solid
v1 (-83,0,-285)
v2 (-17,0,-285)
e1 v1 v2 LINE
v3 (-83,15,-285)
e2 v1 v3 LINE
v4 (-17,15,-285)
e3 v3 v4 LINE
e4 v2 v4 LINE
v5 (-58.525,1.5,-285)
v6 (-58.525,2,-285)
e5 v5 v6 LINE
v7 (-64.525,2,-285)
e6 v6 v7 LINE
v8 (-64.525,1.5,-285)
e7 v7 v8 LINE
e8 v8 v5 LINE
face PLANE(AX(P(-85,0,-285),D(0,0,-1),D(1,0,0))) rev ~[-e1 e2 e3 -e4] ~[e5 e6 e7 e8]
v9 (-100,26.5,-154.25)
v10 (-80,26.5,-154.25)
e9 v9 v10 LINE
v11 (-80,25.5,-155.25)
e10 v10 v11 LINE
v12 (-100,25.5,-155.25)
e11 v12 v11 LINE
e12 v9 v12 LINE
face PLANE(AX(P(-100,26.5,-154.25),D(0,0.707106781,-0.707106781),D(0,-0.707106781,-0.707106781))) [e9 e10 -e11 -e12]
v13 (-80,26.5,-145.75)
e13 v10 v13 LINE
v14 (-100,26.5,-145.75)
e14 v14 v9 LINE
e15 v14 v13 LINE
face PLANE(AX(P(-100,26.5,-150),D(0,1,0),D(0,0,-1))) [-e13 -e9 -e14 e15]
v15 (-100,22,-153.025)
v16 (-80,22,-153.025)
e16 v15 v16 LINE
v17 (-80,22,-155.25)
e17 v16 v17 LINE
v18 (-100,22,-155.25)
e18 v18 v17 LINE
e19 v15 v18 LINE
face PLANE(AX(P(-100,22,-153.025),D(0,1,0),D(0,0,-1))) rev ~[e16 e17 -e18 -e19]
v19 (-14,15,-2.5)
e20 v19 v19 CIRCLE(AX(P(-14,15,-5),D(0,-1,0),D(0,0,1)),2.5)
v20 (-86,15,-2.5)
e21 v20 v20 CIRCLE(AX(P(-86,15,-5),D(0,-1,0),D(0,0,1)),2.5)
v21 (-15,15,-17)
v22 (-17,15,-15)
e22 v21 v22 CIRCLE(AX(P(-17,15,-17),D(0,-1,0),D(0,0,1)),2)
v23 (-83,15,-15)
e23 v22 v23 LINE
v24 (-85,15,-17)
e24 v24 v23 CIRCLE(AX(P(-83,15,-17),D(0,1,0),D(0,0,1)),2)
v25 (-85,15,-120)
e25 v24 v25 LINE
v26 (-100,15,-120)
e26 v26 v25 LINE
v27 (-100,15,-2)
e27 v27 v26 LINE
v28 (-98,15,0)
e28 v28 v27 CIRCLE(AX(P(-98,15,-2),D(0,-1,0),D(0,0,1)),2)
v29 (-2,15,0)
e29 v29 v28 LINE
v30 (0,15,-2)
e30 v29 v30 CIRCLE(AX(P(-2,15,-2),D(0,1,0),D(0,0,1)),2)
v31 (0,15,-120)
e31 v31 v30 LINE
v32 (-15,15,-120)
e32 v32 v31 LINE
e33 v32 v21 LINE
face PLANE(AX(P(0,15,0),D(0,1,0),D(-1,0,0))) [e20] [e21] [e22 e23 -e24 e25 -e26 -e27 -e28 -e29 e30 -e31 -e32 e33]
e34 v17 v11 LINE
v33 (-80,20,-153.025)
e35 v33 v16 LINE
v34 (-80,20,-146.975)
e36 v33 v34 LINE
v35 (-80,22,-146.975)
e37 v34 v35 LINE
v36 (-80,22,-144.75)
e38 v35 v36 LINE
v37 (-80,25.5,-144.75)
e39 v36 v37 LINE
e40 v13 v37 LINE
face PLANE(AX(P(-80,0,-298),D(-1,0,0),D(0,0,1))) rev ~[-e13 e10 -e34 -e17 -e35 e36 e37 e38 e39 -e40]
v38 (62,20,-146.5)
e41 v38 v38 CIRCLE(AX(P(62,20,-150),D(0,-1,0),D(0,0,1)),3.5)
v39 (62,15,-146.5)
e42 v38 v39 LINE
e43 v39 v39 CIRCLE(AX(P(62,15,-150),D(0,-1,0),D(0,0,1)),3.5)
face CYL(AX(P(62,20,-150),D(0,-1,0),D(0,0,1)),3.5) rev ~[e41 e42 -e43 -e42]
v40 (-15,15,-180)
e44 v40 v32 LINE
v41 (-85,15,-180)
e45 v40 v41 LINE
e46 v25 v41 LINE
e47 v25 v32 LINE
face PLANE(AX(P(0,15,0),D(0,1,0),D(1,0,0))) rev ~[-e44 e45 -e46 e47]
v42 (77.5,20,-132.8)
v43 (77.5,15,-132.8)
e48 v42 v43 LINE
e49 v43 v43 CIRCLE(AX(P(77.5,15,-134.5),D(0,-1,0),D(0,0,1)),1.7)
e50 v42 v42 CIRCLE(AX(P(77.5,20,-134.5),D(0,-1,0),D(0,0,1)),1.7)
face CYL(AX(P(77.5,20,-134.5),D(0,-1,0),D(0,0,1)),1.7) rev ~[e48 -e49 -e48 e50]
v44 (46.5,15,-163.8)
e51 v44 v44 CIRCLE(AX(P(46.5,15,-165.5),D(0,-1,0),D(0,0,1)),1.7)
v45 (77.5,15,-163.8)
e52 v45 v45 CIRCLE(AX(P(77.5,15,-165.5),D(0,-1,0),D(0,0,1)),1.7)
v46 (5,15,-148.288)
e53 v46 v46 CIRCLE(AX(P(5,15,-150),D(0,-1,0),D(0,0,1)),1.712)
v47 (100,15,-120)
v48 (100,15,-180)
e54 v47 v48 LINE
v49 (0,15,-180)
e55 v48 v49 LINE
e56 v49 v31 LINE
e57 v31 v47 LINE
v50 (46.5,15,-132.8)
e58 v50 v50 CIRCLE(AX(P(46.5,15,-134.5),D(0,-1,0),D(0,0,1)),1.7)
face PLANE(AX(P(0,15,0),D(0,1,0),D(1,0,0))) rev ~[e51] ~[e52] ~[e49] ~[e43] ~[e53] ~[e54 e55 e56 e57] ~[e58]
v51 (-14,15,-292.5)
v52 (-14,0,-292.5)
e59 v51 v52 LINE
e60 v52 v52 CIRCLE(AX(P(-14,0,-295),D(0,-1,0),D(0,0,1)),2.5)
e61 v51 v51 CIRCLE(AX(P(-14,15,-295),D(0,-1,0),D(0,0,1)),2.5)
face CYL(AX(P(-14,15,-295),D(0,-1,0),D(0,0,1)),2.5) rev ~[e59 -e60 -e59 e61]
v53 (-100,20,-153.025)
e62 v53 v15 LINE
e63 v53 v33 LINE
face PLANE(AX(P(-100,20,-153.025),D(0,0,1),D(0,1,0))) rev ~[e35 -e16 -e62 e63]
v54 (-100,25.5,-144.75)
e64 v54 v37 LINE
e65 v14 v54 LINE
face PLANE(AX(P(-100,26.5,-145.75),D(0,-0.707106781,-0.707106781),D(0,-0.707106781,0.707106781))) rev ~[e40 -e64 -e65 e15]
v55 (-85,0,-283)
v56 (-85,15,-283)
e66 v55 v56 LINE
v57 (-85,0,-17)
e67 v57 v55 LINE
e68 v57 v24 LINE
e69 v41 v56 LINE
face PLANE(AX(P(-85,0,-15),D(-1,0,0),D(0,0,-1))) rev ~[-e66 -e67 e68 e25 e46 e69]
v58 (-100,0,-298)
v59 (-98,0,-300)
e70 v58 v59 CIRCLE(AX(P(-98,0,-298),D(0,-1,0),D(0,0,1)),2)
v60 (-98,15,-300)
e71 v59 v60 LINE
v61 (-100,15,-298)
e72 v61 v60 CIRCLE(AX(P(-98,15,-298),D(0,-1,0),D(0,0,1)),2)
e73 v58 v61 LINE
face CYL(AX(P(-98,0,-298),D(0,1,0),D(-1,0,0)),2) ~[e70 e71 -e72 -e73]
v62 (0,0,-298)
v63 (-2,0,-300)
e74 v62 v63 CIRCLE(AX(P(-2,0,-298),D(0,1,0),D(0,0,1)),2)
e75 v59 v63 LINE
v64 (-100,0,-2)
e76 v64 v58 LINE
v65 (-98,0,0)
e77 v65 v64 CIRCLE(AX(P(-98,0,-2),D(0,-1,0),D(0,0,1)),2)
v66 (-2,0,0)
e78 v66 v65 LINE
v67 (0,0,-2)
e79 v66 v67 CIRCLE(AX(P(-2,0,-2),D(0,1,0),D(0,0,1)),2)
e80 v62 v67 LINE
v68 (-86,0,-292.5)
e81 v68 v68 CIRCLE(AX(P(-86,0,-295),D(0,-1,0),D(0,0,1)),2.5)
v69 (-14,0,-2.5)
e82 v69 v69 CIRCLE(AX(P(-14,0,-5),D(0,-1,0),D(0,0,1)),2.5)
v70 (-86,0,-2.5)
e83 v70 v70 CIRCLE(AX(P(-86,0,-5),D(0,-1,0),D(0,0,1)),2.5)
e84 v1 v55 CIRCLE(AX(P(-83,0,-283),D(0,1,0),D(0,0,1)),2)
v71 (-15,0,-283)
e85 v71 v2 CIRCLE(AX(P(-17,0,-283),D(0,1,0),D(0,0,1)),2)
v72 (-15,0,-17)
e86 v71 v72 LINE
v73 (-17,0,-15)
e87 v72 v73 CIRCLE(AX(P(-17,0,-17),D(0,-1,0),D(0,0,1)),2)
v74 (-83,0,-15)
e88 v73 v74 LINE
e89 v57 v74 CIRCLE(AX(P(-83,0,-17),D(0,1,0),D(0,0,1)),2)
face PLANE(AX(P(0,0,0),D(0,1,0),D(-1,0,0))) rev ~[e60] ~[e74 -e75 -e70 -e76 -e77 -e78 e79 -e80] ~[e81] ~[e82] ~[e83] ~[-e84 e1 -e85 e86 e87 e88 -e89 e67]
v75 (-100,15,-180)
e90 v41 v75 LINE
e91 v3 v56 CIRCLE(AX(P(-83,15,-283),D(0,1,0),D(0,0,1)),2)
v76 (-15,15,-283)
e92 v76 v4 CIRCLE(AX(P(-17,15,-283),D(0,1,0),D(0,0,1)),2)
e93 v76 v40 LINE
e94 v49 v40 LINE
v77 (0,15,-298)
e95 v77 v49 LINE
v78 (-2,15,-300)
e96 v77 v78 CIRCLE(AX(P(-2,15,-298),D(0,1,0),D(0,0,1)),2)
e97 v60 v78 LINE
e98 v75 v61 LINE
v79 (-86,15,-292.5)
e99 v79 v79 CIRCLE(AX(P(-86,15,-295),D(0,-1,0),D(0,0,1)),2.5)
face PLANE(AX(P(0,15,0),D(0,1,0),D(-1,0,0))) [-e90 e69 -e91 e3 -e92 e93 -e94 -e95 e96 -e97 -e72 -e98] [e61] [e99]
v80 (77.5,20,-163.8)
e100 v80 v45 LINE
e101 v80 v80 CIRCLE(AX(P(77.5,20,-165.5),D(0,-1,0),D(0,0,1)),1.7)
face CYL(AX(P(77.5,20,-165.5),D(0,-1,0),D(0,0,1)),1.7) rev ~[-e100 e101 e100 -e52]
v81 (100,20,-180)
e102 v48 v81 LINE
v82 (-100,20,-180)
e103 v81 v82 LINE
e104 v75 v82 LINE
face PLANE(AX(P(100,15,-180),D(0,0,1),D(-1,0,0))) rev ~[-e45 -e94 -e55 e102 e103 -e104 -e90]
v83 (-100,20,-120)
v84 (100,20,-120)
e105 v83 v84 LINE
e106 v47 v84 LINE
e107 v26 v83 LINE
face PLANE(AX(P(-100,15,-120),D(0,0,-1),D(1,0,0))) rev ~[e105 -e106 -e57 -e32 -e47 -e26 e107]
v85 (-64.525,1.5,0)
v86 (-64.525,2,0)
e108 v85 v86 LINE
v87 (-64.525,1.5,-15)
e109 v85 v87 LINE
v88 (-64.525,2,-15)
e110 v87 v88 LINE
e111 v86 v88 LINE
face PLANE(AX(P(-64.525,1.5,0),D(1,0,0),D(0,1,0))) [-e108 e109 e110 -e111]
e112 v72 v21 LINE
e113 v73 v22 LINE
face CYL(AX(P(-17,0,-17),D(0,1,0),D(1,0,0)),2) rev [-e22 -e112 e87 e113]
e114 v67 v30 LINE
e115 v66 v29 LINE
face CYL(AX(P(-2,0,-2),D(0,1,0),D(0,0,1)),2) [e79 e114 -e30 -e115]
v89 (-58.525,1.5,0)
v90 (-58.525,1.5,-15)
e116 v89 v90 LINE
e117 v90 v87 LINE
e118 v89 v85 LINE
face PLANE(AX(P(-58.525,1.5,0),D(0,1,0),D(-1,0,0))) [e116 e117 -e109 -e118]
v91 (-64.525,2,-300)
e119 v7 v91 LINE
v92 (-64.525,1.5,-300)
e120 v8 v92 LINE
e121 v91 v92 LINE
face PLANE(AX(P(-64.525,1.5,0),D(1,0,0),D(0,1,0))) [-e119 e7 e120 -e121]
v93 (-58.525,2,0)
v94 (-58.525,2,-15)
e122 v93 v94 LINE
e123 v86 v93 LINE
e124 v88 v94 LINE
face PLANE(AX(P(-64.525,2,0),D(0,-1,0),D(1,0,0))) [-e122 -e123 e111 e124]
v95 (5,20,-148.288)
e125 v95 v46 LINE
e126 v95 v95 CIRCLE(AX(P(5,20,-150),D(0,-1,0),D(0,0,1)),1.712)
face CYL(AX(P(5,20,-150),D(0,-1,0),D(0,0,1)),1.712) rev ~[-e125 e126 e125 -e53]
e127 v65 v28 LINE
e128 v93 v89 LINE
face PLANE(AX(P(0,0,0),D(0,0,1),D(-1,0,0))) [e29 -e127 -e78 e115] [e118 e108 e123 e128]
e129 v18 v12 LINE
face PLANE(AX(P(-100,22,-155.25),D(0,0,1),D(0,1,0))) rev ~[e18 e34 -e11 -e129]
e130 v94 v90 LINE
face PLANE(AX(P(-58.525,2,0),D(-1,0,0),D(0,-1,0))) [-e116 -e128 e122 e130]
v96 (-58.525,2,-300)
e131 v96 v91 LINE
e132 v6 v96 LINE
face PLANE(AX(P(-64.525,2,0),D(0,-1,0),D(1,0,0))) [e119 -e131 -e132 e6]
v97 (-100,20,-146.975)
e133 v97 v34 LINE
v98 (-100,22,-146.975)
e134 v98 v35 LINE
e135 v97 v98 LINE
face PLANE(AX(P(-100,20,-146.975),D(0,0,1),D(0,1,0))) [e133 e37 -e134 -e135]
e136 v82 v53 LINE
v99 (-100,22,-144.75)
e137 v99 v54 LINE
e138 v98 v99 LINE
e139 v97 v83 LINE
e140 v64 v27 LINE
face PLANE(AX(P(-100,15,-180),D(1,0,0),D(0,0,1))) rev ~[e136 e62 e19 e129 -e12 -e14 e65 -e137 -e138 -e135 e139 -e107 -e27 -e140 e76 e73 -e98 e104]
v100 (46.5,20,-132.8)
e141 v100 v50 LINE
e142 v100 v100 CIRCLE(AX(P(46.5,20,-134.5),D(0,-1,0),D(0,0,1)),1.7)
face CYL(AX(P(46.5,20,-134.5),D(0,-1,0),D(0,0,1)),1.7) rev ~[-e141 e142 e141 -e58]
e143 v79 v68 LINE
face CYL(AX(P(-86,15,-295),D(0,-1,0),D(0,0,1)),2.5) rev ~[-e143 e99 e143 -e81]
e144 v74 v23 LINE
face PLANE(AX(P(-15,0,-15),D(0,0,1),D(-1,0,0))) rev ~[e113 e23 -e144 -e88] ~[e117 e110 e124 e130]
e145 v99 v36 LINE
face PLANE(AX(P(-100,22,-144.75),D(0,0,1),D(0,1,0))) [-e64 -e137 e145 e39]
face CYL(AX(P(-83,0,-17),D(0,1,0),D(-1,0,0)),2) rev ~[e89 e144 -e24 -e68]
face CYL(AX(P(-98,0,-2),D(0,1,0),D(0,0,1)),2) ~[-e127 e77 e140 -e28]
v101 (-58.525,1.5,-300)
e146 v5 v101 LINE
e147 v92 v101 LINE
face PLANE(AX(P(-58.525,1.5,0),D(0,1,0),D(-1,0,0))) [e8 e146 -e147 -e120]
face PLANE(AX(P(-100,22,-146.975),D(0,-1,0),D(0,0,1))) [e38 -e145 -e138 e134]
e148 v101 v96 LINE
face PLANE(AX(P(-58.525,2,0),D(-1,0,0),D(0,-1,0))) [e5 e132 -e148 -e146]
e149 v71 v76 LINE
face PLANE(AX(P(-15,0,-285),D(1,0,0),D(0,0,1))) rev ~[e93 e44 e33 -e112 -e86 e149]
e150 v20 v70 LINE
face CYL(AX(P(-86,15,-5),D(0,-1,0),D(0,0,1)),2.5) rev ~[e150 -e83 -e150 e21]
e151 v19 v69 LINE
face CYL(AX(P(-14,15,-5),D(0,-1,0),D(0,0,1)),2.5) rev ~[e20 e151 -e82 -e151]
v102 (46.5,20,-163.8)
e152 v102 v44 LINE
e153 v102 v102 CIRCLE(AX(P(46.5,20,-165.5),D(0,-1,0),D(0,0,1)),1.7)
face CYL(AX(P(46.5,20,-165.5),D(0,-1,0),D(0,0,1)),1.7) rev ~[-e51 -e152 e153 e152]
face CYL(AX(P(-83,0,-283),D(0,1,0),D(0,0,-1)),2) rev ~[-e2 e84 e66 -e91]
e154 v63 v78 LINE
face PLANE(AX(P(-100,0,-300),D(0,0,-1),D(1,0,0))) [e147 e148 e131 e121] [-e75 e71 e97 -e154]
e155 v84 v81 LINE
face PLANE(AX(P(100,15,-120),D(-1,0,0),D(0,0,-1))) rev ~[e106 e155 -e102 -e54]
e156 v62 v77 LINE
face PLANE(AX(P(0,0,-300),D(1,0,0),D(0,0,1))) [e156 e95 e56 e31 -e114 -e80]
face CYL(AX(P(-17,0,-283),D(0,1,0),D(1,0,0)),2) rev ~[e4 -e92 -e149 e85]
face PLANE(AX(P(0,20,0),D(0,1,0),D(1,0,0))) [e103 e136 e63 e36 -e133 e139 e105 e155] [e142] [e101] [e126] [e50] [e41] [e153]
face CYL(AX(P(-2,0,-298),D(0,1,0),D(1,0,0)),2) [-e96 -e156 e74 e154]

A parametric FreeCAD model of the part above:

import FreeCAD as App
import Part
import Sketcher
from FreeCAD import Vector


def edges_at(feature, points):
    """Names of the edges that pass closest to the given points."""
    edges = feature.Shape.Edges
    near = lambda p: min(range(len(edges)), key=lambda i: edges[i].distToShape(Part.Vertex(*p))[0])
    return sorted({f"Edge{near(p) + 1}" for p in points})


def add_polygon(sketch, points):
    """Adds a closed chain of lines whose ends are joined by coincident constraints."""
    first, n = sketch.GeometryCount, len(points)
    for a, b in zip(points, points[1:] + points[:1]):
        sketch.addGeometry(Part.LineSegment(App.Vector(*a, 0), App.Vector(*b, 0)), False)
    for i in range(n):
        sketch.addConstraint(Sketcher.Constraint("Coincident", first + i, 2, first + (i + 1) % n, 1))

doc = App.newDocument("Part")
body = doc.addObject("PartDesign::Body", "Body")

# Sketch on XZ plane
sketch1 = body.newObject("Sketcher::SketchObject", "Sketch")
sketch1.AttachmentSupport = (doc.getObject("XZ_Plane"), [""])
sketch1.MapMode = "FlatFace"
add_polygon(sketch1, [(-100, 0), (0, 0), (0, -300), (-100, -300)])  # lines 0-3
sketch1.addConstraint([
    Sketcher.Constraint("Horizontal", 0),
    Sketcher.Constraint("Vertical", 1),
    Sketcher.Constraint("Horizontal", 2),
    Sketcher.Constraint("Vertical", 3),
    Sketcher.Constraint("Coincident", 0, 2, -1, 1),
    Sketcher.Constraint("DistanceX", 0, 1, 0, 2, 100.0),
    Sketcher.Constraint("DistanceY", 1, 2, 1, 1, 300.0),
])
pad1 = body.newObject("PartDesign::Pad", "Pad")
pad1.Profile = sketch1
pad1.Length = 15
pad1.Reversed = True

# Sketch on XZ plane
sketch2 = body.newObject("Sketcher::SketchObject", "Sketch001")
sketch2.AttachmentSupport = (doc.getObject("XZ_Plane"), [""])
sketch2.MapMode = "FlatFace"
add_polygon(sketch2, [(-85, -15), (-15, -15), (-15, -285), (-85, -285)])  # lines 0-3
sketch2.addConstraint([
    Sketcher.Constraint("Horizontal", 0),
    Sketcher.Constraint("Vertical", 1),
    Sketcher.Constraint("Horizontal", 2),
    Sketcher.Constraint("Vertical", 3),
    Sketcher.Constraint("DistanceX", 0, 1, 0, 2, 70.0),
    Sketcher.Constraint("DistanceY", 1, 2, 1, 1, 270.0),
    Sketcher.Constraint("DistanceX", 0, 2, -1, 1, 15.0),
    Sketcher.Constraint("DistanceY", 0, 2, -1, 1, 15.0),
])
pocket1 = body.newObject("PartDesign::Pocket", "Pocket")
pocket1.Profile = sketch2
pocket1.Length = 15
doc.recompute()

fillet = body.newObject("PartDesign::Fillet", "Fillet")
fillet.Base = (pocket1, edges_at(pocket1, [
    (-85, 7.5, -285),
    (-15, 7.5, -285),
    (-15, 7.5, -15),
    (-85, 7.5, -15),
    (-100, 7.5, 0),
    (-100, 7.5, -300),
    (0, 7.5, -300),
    (0, 7.5, 0),
]))
fillet.Radius = 2

# Sketch on XZ plane
sketch3 = body.newObject("Sketcher::SketchObject", "Sketch002")
sketch3.AttachmentSupport = (doc.getObject("XZ_Plane"), [""])
sketch3.MapMode = "FlatFace"
sketch3.AttachmentOffset = App.Placement(Vector(0, 0, -15), App.Rotation())
sketch3.addGeometry([
    Part.Circle(Vector(-14, -295, 0), Vector(0, 0, 1), 2.5),
    Part.Circle(Vector(-14, -5, 0), Vector(0, 0, 1), 2.5),
    Part.Circle(Vector(-86, -295, 0), Vector(0, 0, 1), 2.5),
    Part.Circle(Vector(-86, -5, 0), Vector(0, 0, 1), 2.5),
], False)
sketch3.addConstraint([
    Sketcher.Constraint("Equal", 0, 1),
    Sketcher.Constraint("Equal", 1, 2),
    Sketcher.Constraint("Equal", 2, 3),
    Sketcher.Constraint("Horizontal", 0, 3, 2, 3),
    Sketcher.Constraint("Horizontal", 1, 3, 3, 3),
    Sketcher.Constraint("Vertical", 0, 3, 1, 3),
    Sketcher.Constraint("Vertical", 2, 3, 3, 3),
    Sketcher.Constraint("Diameter", 0, 5.0),
    Sketcher.Constraint("DistanceX", 0, 3, -1, 1, 14.0),
    Sketcher.Constraint("DistanceY", 0, 3, -1, 1, 295.0),
    Sketcher.Constraint("DistanceY", 1, 3, -1, 1, 5.0),
    Sketcher.Constraint("DistanceX", 2, 3, -1, 1, 86.0),
])
doc.recompute()
hole = body.newObject("PartDesign::Hole", "Hole")
hole.Profile = sketch3
hole.ThreadType = "None"
hole.Diameter = 5
hole.DepthType = "Dimension"
hole.Depth = 15
hole.DrillPoint = "Flat"
hole.Reversed = True

# Sketch on XZ plane
sketch4 = body.newObject("Sketcher::SketchObject", "Sketch003")
sketch4.AttachmentSupport = (doc.getObject("XZ_Plane"), [""])
sketch4.MapMode = "FlatFace"
sketch4.AttachmentOffset = App.Placement(Vector(0, 0, -15), App.Rotation())
add_polygon(sketch4, [(100, -180), (-100, -180), (-100, -120), (100, -120)])  # lines 0-3
sketch4.addConstraint([
    Sketcher.Constraint("Horizontal", 0),
    Sketcher.Constraint("Vertical", 1),
    Sketcher.Constraint("Horizontal", 2),
    Sketcher.Constraint("Vertical", 3),
    Sketcher.Constraint("DistanceX", 0, 2, 0, 1, 200.0),
    Sketcher.Constraint("DistanceY", 1, 1, 1, 2, 60.0),
    Sketcher.Constraint("DistanceY", 1, 2, -1, 1, 120.0),
    Sketcher.Constraint("DistanceX", 0, 2, -1, 1, 100.0),
])
pad2 = body.newObject("PartDesign::Pad", "Pad001")
pad2.Profile = sketch4
pad2.Length = 5
pad2.Reversed = True

# Sketch on YZ plane
sketch5 = body.newObject("Sketcher::SketchObject", "Sketch004")
sketch5.AttachmentSupport = (doc.getObject("YZ_Plane"), [""])
sketch5.MapMode = "FlatFace"
sketch5.AttachmentOffset = App.Placement(Vector(0, 0, -100), App.Rotation())
add_polygon(sketch5, [(20, -153), (20, -147), (22, -147), (22, -144.8), (25.5, -144.8), (26.5, -145.8), (26.5, -154.2), (25.5, -155.2), (22, -155.2), (22, -153)])  # lines 0-9
sketch5.addConstraint([
    Sketcher.Constraint("Vertical", 0),
    Sketcher.Constraint("Horizontal", 1),
    Sketcher.Constraint("Vertical", 2),
    Sketcher.Constraint("Horizontal", 3),
    Sketcher.Constraint("Vertical", 5),
    Sketcher.Constraint("Horizontal", 7),
    Sketcher.Constraint("Vertical", 8),
    Sketcher.Constraint("Horizontal", 9),
    Sketcher.Constraint("Perpendicular", 4, 6),
    Sketcher.Constraint("Vertical", 3, 2, 6, 2),
    Sketcher.Constraint("Vertical", 2, 2, 7, 2),
    Sketcher.Constraint("Equal", 2, 8),
    Sketcher.Constraint("Equal", 4, 6),
    Sketcher.Constraint("DistanceX", 1, 1, 1, 2, 2.0),
    Sketcher.Constraint("DistanceX", 3, 1, 3, 2, 3.5),
    Sketcher.Constraint("DistanceX", 0, 2, 4, 2, 6.5),
    Sketcher.Constraint("DistanceY", 2, 1, 2, 2, 2.225),
    Sketcher.Constraint("DistanceY", 5, 2, 5, 1, 8.5),
    Sketcher.Constraint("DistanceX", -1, 1, 0, 2, 20.0),
    Sketcher.Constraint("DistanceY", 2, 2, -1, 1, 144.75),
])
pad3 = body.newObject("PartDesign::Pad", "Pad002")
pad3.Profile = sketch5
pad3.Length = 20

# Sketch on XZ plane
sketch6 = body.newObject("Sketcher::SketchObject", "Sketch005")
sketch6.AttachmentSupport = (doc.getObject("XZ_Plane"), [""])
sketch6.MapMode = "FlatFace"
sketch6.AttachmentOffset = App.Placement(Vector(0, 0, -20), App.Rotation())
sketch6.addGeometry(Part.Circle(Vector(5, -150, 0), Vector(0, 0, 1), 1.7), False)
sketch6.addConstraint([
    Sketcher.Constraint("Diameter", 0, 3.424),
    Sketcher.Constraint("DistanceX", -1, 1, 0, 3, 5.0),
    Sketcher.Constraint("DistanceY", 0, 3, -1, 1, 150.0),
])
doc.recompute()
hole2 = body.newObject("PartDesign::Hole", "Hole001")
hole2.Profile = sketch6
hole2.ThreadType = "None"
hole2.Diameter = 3.424
hole2.DepthType = "ThroughAll"
hole2.Reversed = True

# Sketch on XZ plane
sketch7 = body.newObject("Sketcher::SketchObject", "Sketch006")
sketch7.AttachmentSupport = (doc.getObject("XZ_Plane"), [""])
sketch7.MapMode = "FlatFace"
sketch7.AttachmentOffset = App.Placement(Vector(0, 0, -20), App.Rotation())
sketch7.addGeometry(Part.Circle(Vector(62, -150, 0), Vector(0, 0, 1), 3.5), False)
sketch7.addConstraint([
    Sketcher.Constraint("Diameter", 0, 7.0),
    Sketcher.Constraint("DistanceX", -1, 1, 0, 3, 62.0),
    Sketcher.Constraint("DistanceY", 0, 3, -1, 1, 150.0),
])
doc.recompute()
hole3 = body.newObject("PartDesign::Hole", "Hole002")
hole3.Profile = sketch7
hole3.ThreadType = "None"
hole3.Diameter = 7
hole3.DepthType = "ThroughAll"
hole3.Reversed = True

# Sketch on XZ plane
sketch8 = body.newObject("Sketcher::SketchObject", "Sketch007")
sketch8.AttachmentSupport = (doc.getObject("XZ_Plane"), [""])
sketch8.MapMode = "FlatFace"
sketch8.AttachmentOffset = App.Placement(Vector(0, 0, -20), App.Rotation())
sketch8.addGeometry([
    Part.Circle(Vector(46.5, -165.5, 0), Vector(0, 0, 1), 1.7),
    Part.Circle(Vector(77.5, -165.5, 0), Vector(0, 0, 1), 1.7),
    Part.Circle(Vector(77.5, -134.5, 0), Vector(0, 0, 1), 1.7),
    Part.Circle(Vector(46.5, -134.5, 0), Vector(0, 0, 1), 1.7),
], False)
sketch8.addConstraint([
    Sketcher.Constraint("Equal", 0, 1),
    Sketcher.Constraint("Equal", 1, 2),
    Sketcher.Constraint("Equal", 2, 3),
    Sketcher.Constraint("Horizontal", 0, 3, 1, 3),
    Sketcher.Constraint("Horizontal", 2, 3, 3, 3),
    Sketcher.Constraint("Vertical", 1, 3, 2, 3),
    Sketcher.Constraint("Vertical", 0, 3, 3, 3),
    Sketcher.Constraint("Diameter", 0, 3.4),
    Sketcher.Constraint("DistanceX", 0, 3, 1, 3, 31.0),
    Sketcher.Constraint("DistanceY", 1, 3, 2, 3, 31.0),
    Sketcher.Constraint("DistanceX", -1, 1, 0, 3, 46.5),
    Sketcher.Constraint("DistanceY", 0, 3, -1, 1, 165.5),
])
doc.recompute()
hole4 = body.newObject("PartDesign::Hole", "Hole003")
hole4.Profile = sketch8
hole4.ThreadType = "None"
hole4.Diameter = 3.4
hole4.DepthType = "ThroughAll"
hole4.Reversed = True

# Sketch on XY plane
sketch9 = body.newObject("Sketcher::SketchObject", "Sketch008")
sketch9.AttachmentSupport = (doc.getObject("XY_Plane"), [""])
sketch9.MapMode = "FlatFace"
add_polygon(sketch9, [(-58.5, 2), (-64.5, 2), (-64.5, 1.5), (-58.5, 1.5)])  # lines 0-3
sketch9.addConstraint([
    Sketcher.Constraint("Horizontal", 0),
    Sketcher.Constraint("Vertical", 1),
    Sketcher.Constraint("Horizontal", 2),
    Sketcher.Constraint("Vertical", 3),
    Sketcher.Constraint("DistanceX", 0, 2, 0, 1, 6.0),
    Sketcher.Constraint("DistanceY", 1, 2, 1, 1, 0.5),
    Sketcher.Constraint("DistanceY", -1, 1, 1, 2, 1.5),
    Sketcher.Constraint("DistanceX", 0, 2, -1, 1, 64.525),
])
pocket2 = body.newObject("PartDesign::Pocket", "Pocket001")
pocket2.Profile = sketch9
pocket2.Type = "ThroughAll"

doc.recompute()
